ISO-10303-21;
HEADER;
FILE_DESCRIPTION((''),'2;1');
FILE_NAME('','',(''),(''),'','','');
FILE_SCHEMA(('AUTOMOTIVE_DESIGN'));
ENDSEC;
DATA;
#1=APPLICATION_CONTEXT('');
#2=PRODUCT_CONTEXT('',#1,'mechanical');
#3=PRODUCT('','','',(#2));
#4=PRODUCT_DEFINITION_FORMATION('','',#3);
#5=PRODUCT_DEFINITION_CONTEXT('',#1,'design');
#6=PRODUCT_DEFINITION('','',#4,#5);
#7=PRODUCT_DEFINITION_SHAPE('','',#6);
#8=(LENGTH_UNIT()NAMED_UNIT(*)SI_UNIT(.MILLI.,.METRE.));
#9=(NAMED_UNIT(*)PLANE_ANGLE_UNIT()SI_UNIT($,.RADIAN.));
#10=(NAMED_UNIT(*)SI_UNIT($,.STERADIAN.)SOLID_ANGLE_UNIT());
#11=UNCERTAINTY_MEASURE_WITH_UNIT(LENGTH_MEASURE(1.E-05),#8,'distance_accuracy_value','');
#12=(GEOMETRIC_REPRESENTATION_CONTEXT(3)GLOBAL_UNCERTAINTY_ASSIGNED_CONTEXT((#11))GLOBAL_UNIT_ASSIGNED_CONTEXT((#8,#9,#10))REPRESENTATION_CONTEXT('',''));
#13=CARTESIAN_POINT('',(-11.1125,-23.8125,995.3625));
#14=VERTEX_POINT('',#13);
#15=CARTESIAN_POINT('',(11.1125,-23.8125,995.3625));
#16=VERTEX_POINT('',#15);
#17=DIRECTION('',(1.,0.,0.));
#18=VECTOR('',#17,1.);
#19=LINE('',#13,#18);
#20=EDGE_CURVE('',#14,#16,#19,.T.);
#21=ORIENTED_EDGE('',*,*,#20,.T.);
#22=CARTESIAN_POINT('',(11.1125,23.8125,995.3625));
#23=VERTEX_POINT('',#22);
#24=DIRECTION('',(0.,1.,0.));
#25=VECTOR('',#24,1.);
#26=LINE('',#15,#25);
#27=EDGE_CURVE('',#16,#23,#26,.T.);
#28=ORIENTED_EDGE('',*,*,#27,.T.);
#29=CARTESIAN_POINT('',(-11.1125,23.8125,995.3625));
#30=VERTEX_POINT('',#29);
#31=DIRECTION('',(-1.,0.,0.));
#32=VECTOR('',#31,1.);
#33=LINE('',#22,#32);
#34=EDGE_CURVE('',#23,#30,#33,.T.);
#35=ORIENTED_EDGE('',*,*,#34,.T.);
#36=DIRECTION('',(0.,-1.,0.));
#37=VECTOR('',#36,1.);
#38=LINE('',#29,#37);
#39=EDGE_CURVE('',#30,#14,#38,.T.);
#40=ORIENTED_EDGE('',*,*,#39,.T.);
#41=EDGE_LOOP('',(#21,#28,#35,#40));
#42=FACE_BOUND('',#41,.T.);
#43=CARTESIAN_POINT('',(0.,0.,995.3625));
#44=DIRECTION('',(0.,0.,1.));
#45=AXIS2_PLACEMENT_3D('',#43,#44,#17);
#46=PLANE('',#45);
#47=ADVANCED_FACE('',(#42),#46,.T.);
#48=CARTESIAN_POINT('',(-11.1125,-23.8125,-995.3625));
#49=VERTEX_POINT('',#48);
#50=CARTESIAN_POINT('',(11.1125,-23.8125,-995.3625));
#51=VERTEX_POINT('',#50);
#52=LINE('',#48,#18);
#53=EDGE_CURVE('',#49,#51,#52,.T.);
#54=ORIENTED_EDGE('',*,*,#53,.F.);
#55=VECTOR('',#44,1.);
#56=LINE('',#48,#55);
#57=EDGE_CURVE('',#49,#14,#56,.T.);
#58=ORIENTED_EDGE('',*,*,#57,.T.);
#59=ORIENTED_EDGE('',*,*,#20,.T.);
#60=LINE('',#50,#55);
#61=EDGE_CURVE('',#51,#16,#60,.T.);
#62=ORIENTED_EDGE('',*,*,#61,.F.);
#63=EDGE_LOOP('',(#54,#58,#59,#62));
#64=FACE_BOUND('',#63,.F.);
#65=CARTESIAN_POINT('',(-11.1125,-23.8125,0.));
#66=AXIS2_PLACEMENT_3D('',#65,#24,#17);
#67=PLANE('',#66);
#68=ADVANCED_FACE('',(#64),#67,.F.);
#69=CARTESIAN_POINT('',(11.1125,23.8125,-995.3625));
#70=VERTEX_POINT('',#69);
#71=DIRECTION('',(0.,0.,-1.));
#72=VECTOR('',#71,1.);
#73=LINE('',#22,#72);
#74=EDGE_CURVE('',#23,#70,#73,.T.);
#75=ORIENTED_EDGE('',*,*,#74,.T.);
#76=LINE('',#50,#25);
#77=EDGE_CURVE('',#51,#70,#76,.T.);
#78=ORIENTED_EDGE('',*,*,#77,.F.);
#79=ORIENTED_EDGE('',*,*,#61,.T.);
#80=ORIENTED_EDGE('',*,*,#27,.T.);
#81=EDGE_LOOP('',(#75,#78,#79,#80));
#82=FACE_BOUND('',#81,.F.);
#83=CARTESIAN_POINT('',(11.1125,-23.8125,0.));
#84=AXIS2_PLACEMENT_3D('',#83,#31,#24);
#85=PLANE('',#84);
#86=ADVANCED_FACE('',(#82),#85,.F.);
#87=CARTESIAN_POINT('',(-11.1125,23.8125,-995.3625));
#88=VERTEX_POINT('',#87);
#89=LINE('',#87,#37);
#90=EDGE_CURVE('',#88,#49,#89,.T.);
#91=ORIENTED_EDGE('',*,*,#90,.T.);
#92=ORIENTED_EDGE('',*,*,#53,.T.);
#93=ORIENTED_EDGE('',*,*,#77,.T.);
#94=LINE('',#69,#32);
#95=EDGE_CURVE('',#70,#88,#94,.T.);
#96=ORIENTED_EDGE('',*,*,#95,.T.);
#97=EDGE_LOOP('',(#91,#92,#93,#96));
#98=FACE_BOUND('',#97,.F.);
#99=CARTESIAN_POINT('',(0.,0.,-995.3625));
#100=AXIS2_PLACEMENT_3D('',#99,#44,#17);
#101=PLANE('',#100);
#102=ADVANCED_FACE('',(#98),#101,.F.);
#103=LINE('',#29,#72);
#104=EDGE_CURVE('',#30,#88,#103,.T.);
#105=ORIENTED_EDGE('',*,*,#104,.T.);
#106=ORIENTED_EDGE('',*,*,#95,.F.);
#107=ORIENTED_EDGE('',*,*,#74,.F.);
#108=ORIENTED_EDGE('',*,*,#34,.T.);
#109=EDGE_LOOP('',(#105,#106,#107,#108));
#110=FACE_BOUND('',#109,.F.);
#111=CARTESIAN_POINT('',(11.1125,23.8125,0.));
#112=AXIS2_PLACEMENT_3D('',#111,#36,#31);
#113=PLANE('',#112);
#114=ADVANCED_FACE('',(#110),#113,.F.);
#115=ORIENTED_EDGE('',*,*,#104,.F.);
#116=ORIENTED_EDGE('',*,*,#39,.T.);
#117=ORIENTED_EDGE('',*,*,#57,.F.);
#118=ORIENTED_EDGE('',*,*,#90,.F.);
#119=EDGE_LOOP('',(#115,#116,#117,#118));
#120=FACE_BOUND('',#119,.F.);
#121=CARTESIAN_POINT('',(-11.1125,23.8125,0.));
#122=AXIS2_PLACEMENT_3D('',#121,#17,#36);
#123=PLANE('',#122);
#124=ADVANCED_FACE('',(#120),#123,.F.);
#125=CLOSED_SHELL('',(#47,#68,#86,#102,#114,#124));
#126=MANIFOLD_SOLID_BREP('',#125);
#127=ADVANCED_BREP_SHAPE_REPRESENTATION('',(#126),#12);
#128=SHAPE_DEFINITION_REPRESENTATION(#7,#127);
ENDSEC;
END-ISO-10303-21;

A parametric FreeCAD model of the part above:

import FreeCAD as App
import Part
import Sketcher

V = App.Vector
Q = App.Units.Quantity

doc = App.newDocument("Part")
body = doc.addObject("PartDesign::Body", "Body")

sketch1 = body.newObject("Sketcher::SketchObject", "Sketch")
sketch1.AttachmentSupport = (doc.getObject("XY_Plane"), [""])
sketch1.MapMode = "FlatFace"
sketch1.addGeometry(Part.LineSegment(V(-11, 24, 0), V(-11, -24, 0)), False)
sketch1.addGeometry(Part.LineSegment(V(-11, -24, 0), V(11, -24, 0)), False)
sketch1.addGeometry(Part.LineSegment(V(11, -24, 0), V(11, 24, 0)), False)
sketch1.addGeometry(Part.LineSegment(V(11, 24, 0), V(-11, 24, 0)), False)
sketch1.addConstraint(Sketcher.Constraint("Coincident", 0, 2, 1, 1))
sketch1.addConstraint(Sketcher.Constraint("Coincident", 1, 2, 2, 1))
sketch1.addConstraint(Sketcher.Constraint("Coincident", 2, 2, 3, 1))
sketch1.addConstraint(Sketcher.Constraint("Coincident", 3, 2, 0, 1))
sketch1.addConstraint(Sketcher.Constraint("Vertical", 0))
sketch1.addConstraint(Sketcher.Constraint("Horizontal", 1))
sketch1.addConstraint(Sketcher.Constraint("Vertical", 2))
sketch1.addConstraint(Sketcher.Constraint("Horizontal", 3))
sketch1.addConstraint(Sketcher.Constraint("Symmetric", 0, 2, 2, 2, -1, 1))
sketch1.addConstraint(Sketcher.Constraint("DistanceX", 1, 1, 1, 2, Q("0.875 in")))
sketch1.addConstraint(Sketcher.Constraint("DistanceY", 0, 2, 0, 1, Q("1.875 in")))
pad1 = body.newObject("PartDesign::Pad", "Pad")
pad1.Profile = sketch1
pad1.Length = Q("78.375 in")
pad1.Midplane = True

doc.recompute()
